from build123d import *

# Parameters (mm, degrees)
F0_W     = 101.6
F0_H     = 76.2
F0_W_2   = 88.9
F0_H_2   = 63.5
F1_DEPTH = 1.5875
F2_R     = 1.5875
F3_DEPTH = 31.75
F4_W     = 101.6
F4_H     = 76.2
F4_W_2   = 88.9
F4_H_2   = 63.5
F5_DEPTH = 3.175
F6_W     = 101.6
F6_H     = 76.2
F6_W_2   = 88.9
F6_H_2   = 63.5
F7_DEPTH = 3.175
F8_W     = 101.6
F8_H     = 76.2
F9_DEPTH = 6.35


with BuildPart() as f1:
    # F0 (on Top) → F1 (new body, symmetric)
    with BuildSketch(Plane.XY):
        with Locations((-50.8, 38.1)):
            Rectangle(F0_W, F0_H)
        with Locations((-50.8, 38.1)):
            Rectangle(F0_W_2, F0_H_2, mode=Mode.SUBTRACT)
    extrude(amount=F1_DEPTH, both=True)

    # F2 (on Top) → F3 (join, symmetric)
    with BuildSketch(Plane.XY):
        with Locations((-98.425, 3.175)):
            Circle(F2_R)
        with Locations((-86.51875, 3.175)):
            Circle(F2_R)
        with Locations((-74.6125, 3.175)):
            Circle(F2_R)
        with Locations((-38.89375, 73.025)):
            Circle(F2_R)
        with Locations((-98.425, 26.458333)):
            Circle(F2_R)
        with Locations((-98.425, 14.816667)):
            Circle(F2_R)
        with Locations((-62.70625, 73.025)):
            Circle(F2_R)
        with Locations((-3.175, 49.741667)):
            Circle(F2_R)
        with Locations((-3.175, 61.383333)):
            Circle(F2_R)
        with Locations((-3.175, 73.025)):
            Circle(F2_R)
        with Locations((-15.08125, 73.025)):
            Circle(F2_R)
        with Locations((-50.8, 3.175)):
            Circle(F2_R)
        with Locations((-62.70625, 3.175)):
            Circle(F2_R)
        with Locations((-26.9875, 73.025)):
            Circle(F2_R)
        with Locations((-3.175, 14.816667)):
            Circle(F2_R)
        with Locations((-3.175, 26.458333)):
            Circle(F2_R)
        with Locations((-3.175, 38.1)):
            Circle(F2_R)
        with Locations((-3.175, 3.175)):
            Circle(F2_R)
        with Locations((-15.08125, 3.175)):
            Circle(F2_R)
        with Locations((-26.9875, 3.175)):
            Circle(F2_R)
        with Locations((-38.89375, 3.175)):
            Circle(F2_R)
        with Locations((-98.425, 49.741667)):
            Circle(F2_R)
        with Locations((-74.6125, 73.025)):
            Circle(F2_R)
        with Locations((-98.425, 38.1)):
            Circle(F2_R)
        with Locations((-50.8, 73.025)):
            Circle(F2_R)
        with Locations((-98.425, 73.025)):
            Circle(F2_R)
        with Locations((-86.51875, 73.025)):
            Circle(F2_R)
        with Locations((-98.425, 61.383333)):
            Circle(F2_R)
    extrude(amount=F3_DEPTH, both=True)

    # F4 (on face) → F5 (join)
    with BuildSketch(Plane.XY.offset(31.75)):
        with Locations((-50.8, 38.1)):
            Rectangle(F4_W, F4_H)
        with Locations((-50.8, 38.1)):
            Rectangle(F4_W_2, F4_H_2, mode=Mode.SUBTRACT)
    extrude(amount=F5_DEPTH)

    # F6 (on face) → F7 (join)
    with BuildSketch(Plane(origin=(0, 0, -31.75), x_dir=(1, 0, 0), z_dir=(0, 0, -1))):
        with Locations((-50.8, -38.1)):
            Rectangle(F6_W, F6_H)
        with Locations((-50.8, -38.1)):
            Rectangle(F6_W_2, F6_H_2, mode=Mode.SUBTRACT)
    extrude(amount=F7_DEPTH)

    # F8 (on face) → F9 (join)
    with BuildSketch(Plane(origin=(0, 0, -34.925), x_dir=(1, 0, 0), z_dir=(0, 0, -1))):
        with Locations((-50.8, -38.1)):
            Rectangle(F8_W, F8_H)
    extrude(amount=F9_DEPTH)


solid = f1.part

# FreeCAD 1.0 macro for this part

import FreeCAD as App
import Part
import Sketcher
Q = App.Units.Quantity


def add_polygon(sketch, points):
    """Adds a closed chain of lines whose ends are joined by coincident constraints."""
    first, n = sketch.GeometryCount, len(points)
    for a, b in zip(points, points[1:] + points[:1]):
        sketch.addGeometry(Part.LineSegment(App.Vector(*a, 0), App.Vector(*b, 0)), False)
    for i in range(n):
        sketch.addConstraint(Sketcher.Constraint("Coincident", first + i, 2, first + (i + 1) % n, 1))

doc = App.newDocument("Part")
body = doc.addObject("PartDesign::Body", "Body")

sketch1 = body.newObject("Sketcher::SketchObject", "Sketch")
sketch1.AttachmentSupport = (doc.getObject("XY_Plane"), [""])
sketch1.MapMode = "FlatFace"
add_polygon(sketch1, [(-102, 76), (-102, 0), (0, 0), (0, 76)])
add_polygon(sketch1, [(-6, 6), (-95, 6), (-95, 70), (-6, 70)])
sketch1.addConstraint([
    Sketcher.Constraint("Vertical", 0),
    Sketcher.Constraint("Horizontal", 1),
    Sketcher.Constraint("Vertical", 2),
    Sketcher.Constraint("Horizontal", 3),
    Sketcher.Constraint("Horizontal", 4),
    Sketcher.Constraint("Vertical", 5),
    Sketcher.Constraint("Horizontal", 6),
    Sketcher.Constraint("Vertical", 7),
    Sketcher.Constraint("Coincident", 1, 2, -1, 1),
    Sketcher.Constraint("DistanceX", 1, 1, 1, 2, Q("4 in")),
    Sketcher.Constraint("DistanceY", 0, 2, 0, 1, Q("3 in")),
    Sketcher.Constraint("DistanceX", 4, 2, 4, 1, Q("3.5 in")),
    Sketcher.Constraint("DistanceY", 5, 1, 5, 2, Q("2.5 in")),
    Sketcher.Constraint("DistanceX", 4, 2, -1, 1, Q("3.75 in")),
    Sketcher.Constraint("DistanceY", -1, 1, 4, 2, Q("0.25 in")),
])
pad1 = body.newObject("PartDesign::Pad", "Pad")
pad1.Profile = sketch1
pad1.Length = Q("0.125 in")
pad1.Midplane = True

sketch2 = body.newObject("Sketcher::SketchObject", "Sketch001")
sketch2.AttachmentSupport = (doc.getObject("XY_Plane"), [""])
sketch2.MapMode = "FlatFace"
sketch2.addGeometry([
    Part.Circle(App.Vector(-98.4, 3.2, 0), App.Vector(0, 0, 1), 1.6),
    Part.Circle(App.Vector(-86.5, 3.2, 0), App.Vector(0, 0, 1), 1.6),
    Part.Circle(App.Vector(-74.6, 3.2, 0), App.Vector(0, 0, 1), 1.6),
    Part.Circle(App.Vector(-38.9, 73, 0), App.Vector(0, 0, 1), 1.6),
    Part.Circle(App.Vector(-98.4, 26.5, 0), App.Vector(0, 0, 1), 1.6),
    Part.Circle(App.Vector(-98.4, 14.8, 0), App.Vector(0, 0, 1), 1.6),
    Part.Circle(App.Vector(-62.7, 73, 0), App.Vector(0, 0, 1), 1.6),
    Part.Circle(App.Vector(-3.2, 49.7, 0), App.Vector(0, 0, 1), 1.6),
    Part.Circle(App.Vector(-3.2, 61.4, 0), App.Vector(0, 0, 1), 1.6),
    Part.Circle(App.Vector(-3.2, 73, 0), App.Vector(0, 0, 1), 1.6),
    Part.Circle(App.Vector(-15.1, 73, 0), App.Vector(0, 0, 1), 1.6),
    Part.Circle(App.Vector(-50.8, 3.2, 0), App.Vector(0, 0, 1), 1.6),
    Part.Circle(App.Vector(-62.7, 3.2, 0), App.Vector(0, 0, 1), 1.6),
    Part.Circle(App.Vector(-27, 73, 0), App.Vector(0, 0, 1), 1.6),
    Part.Circle(App.Vector(-3.2, 14.8, 0), App.Vector(0, 0, 1), 1.6),
    Part.Circle(App.Vector(-3.2, 26.5, 0), App.Vector(0, 0, 1), 1.6),
    Part.Circle(App.Vector(-3.2, 38.1, 0), App.Vector(0, 0, 1), 1.6),
    Part.Circle(App.Vector(-3.2, 3.2, 0), App.Vector(0, 0, 1), 1.6),
    Part.Circle(App.Vector(-15.1, 3.2, 0), App.Vector(0, 0, 1), 1.6),
    Part.Circle(App.Vector(-27, 3.2, 0), App.Vector(0, 0, 1), 1.6),
    Part.Circle(App.Vector(-38.9, 3.2, 0), App.Vector(0, 0, 1), 1.6),
    Part.Circle(App.Vector(-98.4, 49.7, 0), App.Vector(0, 0, 1), 1.6),
    Part.Circle(App.Vector(-74.6, 73, 0), App.Vector(0, 0, 1), 1.6),
    Part.Circle(App.Vector(-98.4, 38.1, 0), App.Vector(0, 0, 1), 1.6),
    Part.Circle(App.Vector(-50.8, 73, 0), App.Vector(0, 0, 1), 1.6),
    Part.Circle(App.Vector(-98.4, 73, 0), App.Vector(0, 0, 1), 1.6),
    Part.Circle(App.Vector(-86.5, 73, 0), App.Vector(0, 0, 1), 1.6),
    Part.Circle(App.Vector(-98.4, 61.4, 0), App.Vector(0, 0, 1), 1.6),
], False)
sketch2.addConstraint([
    Sketcher.Constraint("Equal", 0, 1),
    Sketcher.Constraint("Equal", 1, 2),
    Sketcher.Constraint("Equal", 2, 3),
    Sketcher.Constraint("Equal", 3, 4),
    Sketcher.Constraint("Equal", 4, 5),
    Sketcher.Constraint("Equal", 5, 6),
    Sketcher.Constraint("Equal", 6, 7),
    Sketcher.Constraint("Equal", 7, 8),
    Sketcher.Constraint("Equal", 8, 9),
    Sketcher.Constraint("Equal", 9, 10),
    Sketcher.Constraint("Equal", 10, 11),
    Sketcher.Constraint("Equal", 11, 12),
    Sketcher.Constraint("Equal", 12, 13),
    Sketcher.Constraint("Equal", 13, 14),
    Sketcher.Constraint("Equal", 14, 15),
    Sketcher.Constraint("Equal", 15, 16),
    Sketcher.Constraint("Equal", 16, 17),
    Sketcher.Constraint("Equal", 17, 18),
    Sketcher.Constraint("Equal", 18, 19),
    Sketcher.Constraint("Equal", 19, 20),
    Sketcher.Constraint("Equal", 20, 21),
    Sketcher.Constraint("Equal", 21, 22),
    Sketcher.Constraint("Equal", 22, 23),
    Sketcher.Constraint("Equal", 23, 24),
    Sketcher.Constraint("Equal", 24, 25),
    Sketcher.Constraint("Equal", 25, 26),
    Sketcher.Constraint("Equal", 26, 27),
    Sketcher.Constraint("Horizontal", 0, 3, 1, 3),
    Sketcher.Constraint("Horizontal", 1, 3, 2, 3),
    Sketcher.Constraint("Horizontal", 3, 3, 6, 3),
    Sketcher.Constraint("Horizontal", 6, 3, 9, 3),
    Sketcher.Constraint("Horizontal", 9, 3, 10, 3),
    Sketcher.Constraint("Horizontal", 2, 3, 11, 3),
    Sketcher.Constraint("Horizontal", 11, 3, 12, 3),
    Sketcher.Constraint("Horizontal", 10, 3, 13, 3),
    Sketcher.Constraint("Horizontal", 5, 3, 14, 3),
    Sketcher.Constraint("Horizontal", 4, 3, 15, 3),
    Sketcher.Constraint("Horizontal", 12, 3, 17, 3),
    Sketcher.Constraint("Horizontal", 17, 3, 18, 3),
    Sketcher.Constraint("Horizontal", 18, 3, 19, 3),
    Sketcher.Constraint("Horizontal", 19, 3, 20, 3),
    Sketcher.Constraint("Horizontal", 7, 3, 21, 3),
    Sketcher.Constraint("Horizontal", 13, 3, 22, 3),
    Sketcher.Constraint("Horizontal", 16, 3, 23, 3),
    Sketcher.Constraint("Horizontal", 22, 3, 24, 3),
    Sketcher.Constraint("Horizontal", 24, 3, 25, 3),
    Sketcher.Constraint("Horizontal", 25, 3, 26, 3),
    Sketcher.Constraint("Horizontal", 8, 3, 27, 3),
    Sketcher.Constraint("Vertical", 0, 3, 4, 3),
    Sketcher.Constraint("Vertical", 4, 3, 5, 3),
    Sketcher.Constraint("Vertical", 7, 3, 8, 3),
    Sketcher.Constraint("Vertical", 8, 3, 9, 3),
    Sketcher.Constraint("Vertical", 6, 3, 12, 3),
    Sketcher.Constraint("Vertical", 9, 3, 14, 3),
    Sketcher.Constraint("Vertical", 14, 3, 15, 3),
    Sketcher.Constraint("Vertical", 15, 3, 16, 3),
    Sketcher.Constraint("Vertical", 16, 3, 17, 3),
    Sketcher.Constraint("Vertical", 10, 3, 18, 3),
    Sketcher.Constraint("Vertical", 13, 3, 19, 3),
    Sketcher.Constraint("Vertical", 3, 3, 20, 3),
    Sketcher.Constraint("Vertical", 5, 3, 21, 3),
    Sketcher.Constraint("Vertical", 2, 3, 22, 3),
    Sketcher.Constraint("Vertical", 21, 3, 23, 3),
    Sketcher.Constraint("Vertical", 11, 3, 24, 3),
    Sketcher.Constraint("Vertical", 23, 3, 25, 3),
    Sketcher.Constraint("Vertical", 1, 3, 26, 3),
    Sketcher.Constraint("Vertical", 25, 3, 27, 3),
    Sketcher.Constraint("Diameter", 0, Q("0.125 in")),
    Sketcher.Constraint("DistanceX", 11, 3, -1, 1, Q("2 in")),
    Sketcher.Constraint("DistanceY", -1, 1, 16, 3, Q("1.5 in")),
    Sketcher.Constraint("DistanceY", 2, 3, 3, 3, Q("2.75 in")),
    Sketcher.Constraint("DistanceX", 4, 3, 7, 3, Q("3.75 in")),
    Sketcher.Constraint("DistanceX", 0, 3, -1, 1, Q("3.875 in")),
    Sketcher.Constraint("DistanceY", -1, 1, 0, 3, Q("0.125 in")),
    Sketcher.Constraint("DistanceX", 1, 3, -1, 1, Q("3.40625 in")),
    Sketcher.Constraint("DistanceX", 2, 3, -1, 1, Q("2.9375 in")),
    Sketcher.Constraint("DistanceX", 3, 3, -1, 1, Q("1.53125 in")),
    Sketcher.Constraint("DistanceX", 6, 3, -1, 1, Q("2.46875 in")),
    Sketcher.Constraint("DistanceX", 10, 3, -1, 1, Q("0.59375 in")),
    Sketcher.Constraint("DistanceX", 13, 3, -1, 1, Q("1.0625 in")),
    Sketcher.Constraint("DistanceY", 4, 3, 8, 3, Q("1.375 in")),
    Sketcher.Constraint("DistanceY", 14, 3, 7, 3, Q("1.375 in")),
    Sketcher.Constraint("DistanceY", -1, 1, 4, 3, 26.458333),
    Sketcher.Constraint("DistanceY", -1, 1, 5, 3, 14.816667),
])
pad2 = body.newObject("PartDesign::Pad", "Pad001")
pad2.Profile = sketch2
pad2.Length = Q("2.5 in")
pad2.Midplane = True

sketch3 = body.newObject("Sketcher::SketchObject", "Sketch002")
sketch3.AttachmentSupport = (doc.getObject("XY_Plane"), [""])
sketch3.MapMode = "FlatFace"
sketch3.AttachmentOffset = App.Placement(App.Vector(0, 0, 1.25 * 25.4), App.Rotation())
add_polygon(sketch3, [(-102, 76), (-102, 0), (0, 0), (0, 76)])
add_polygon(sketch3, [(-6, 6), (-95, 6), (-95, 70), (-6, 70)])
sketch3.addConstraint([
    Sketcher.Constraint("Vertical", 0),
    Sketcher.Constraint("Horizontal", 1),
    Sketcher.Constraint("Vertical", 2),
    Sketcher.Constraint("Horizontal", 3),
    Sketcher.Constraint("Horizontal", 4),
    Sketcher.Constraint("Vertical", 5),
    Sketcher.Constraint("Horizontal", 6),
    Sketcher.Constraint("Vertical", 7),
    Sketcher.Constraint("Coincident", 1, 2, -1, 1),
    Sketcher.Constraint("DistanceX", 1, 1, 1, 2, Q("4 in")),
    Sketcher.Constraint("DistanceY", 0, 2, 0, 1, Q("3 in")),
    Sketcher.Constraint("DistanceX", 4, 2, 4, 1, Q("3.5 in")),
    Sketcher.Constraint("DistanceY", 5, 1, 5, 2, Q("2.5 in")),
    Sketcher.Constraint("DistanceX", 4, 2, -1, 1, Q("3.75 in")),
    Sketcher.Constraint("DistanceY", -1, 1, 4, 2, Q("0.25 in")),
])
pad3 = body.newObject("PartDesign::Pad", "Pad002")
pad3.Profile = sketch3
pad3.Length = Q("0.125 in")

sketch4 = body.newObject("Sketcher::SketchObject", "Sketch003")
sketch4.AttachmentSupport = (doc.getObject("XY_Plane"), [""])
sketch4.MapMode = "FlatFace"
sketch4.AttachmentOffset = App.Placement(App.Vector(0, 0, -1.25 * 25.4), App.Rotation())
add_polygon(sketch4, [(-102, 0), (-102, 76), (0, 76), (0, 0)])
add_polygon(sketch4, [(-6, 70), (-95, 70), (-95, 6), (-6, 6)])
sketch4.addConstraint([
    Sketcher.Constraint("Vertical", 0),
    Sketcher.Constraint("Horizontal", 1),
    Sketcher.Constraint("Vertical", 2),
    Sketcher.Constraint("Horizontal", 3),
    Sketcher.Constraint("Horizontal", 4),
    Sketcher.Constraint("Vertical", 5),
    Sketcher.Constraint("Horizontal", 6),
    Sketcher.Constraint("Vertical", 7),
    Sketcher.Constraint("Coincident", 2, 2, -1, 1),
    Sketcher.Constraint("DistanceX", 1, 1, 1, 2, Q("4 in")),
    Sketcher.Constraint("DistanceY", 0, 1, 0, 2, Q("3 in")),
    Sketcher.Constraint("DistanceX", 4, 2, 4, 1, Q("3.5 in")),
    Sketcher.Constraint("DistanceY", 5, 2, 5, 1, Q("2.5 in")),
    Sketcher.Constraint("DistanceX", 4, 2, -1, 1, Q("3.75 in")),
    Sketcher.Constraint("DistanceY", -1, 1, 4, 2, Q("2.75 in")),
])
pad4 = body.newObject("PartDesign::Pad", "Pad003")
pad4.Profile = sketch4
pad4.Length = Q("0.125 in")
pad4.Reversed = True

sketch5 = body.newObject("Sketcher::SketchObject", "Sketch004")
sketch5.AttachmentSupport = (doc.getObject("XY_Plane"), [""])
sketch5.MapMode = "FlatFace"
sketch5.AttachmentOffset = App.Placement(App.Vector(0, 0, -1.375 * 25.4), App.Rotation())
add_polygon(sketch5, [(-102, 0), (-102, 76), (0, 76), (0, 0)])
sketch5.addConstraint([
    Sketcher.Constraint("Vertical", 0),
    Sketcher.Constraint("Horizontal", 1),
    Sketcher.Constraint("Vertical", 2),
    Sketcher.Constraint("Horizontal", 3),
    Sketcher.Constraint("Coincident", 2, 2, -1, 1),
    Sketcher.Constraint("DistanceX", 1, 1, 1, 2, Q("4 in")),
    Sketcher.Constraint("DistanceY", 0, 1, 0, 2, Q("3 in")),
])
pad5 = body.newObject("PartDesign::Pad", "Pad004")
pad5.Profile = sketch5
pad5.Length = Q("0.25 in")
pad5.Reversed = True

doc.recompute()
